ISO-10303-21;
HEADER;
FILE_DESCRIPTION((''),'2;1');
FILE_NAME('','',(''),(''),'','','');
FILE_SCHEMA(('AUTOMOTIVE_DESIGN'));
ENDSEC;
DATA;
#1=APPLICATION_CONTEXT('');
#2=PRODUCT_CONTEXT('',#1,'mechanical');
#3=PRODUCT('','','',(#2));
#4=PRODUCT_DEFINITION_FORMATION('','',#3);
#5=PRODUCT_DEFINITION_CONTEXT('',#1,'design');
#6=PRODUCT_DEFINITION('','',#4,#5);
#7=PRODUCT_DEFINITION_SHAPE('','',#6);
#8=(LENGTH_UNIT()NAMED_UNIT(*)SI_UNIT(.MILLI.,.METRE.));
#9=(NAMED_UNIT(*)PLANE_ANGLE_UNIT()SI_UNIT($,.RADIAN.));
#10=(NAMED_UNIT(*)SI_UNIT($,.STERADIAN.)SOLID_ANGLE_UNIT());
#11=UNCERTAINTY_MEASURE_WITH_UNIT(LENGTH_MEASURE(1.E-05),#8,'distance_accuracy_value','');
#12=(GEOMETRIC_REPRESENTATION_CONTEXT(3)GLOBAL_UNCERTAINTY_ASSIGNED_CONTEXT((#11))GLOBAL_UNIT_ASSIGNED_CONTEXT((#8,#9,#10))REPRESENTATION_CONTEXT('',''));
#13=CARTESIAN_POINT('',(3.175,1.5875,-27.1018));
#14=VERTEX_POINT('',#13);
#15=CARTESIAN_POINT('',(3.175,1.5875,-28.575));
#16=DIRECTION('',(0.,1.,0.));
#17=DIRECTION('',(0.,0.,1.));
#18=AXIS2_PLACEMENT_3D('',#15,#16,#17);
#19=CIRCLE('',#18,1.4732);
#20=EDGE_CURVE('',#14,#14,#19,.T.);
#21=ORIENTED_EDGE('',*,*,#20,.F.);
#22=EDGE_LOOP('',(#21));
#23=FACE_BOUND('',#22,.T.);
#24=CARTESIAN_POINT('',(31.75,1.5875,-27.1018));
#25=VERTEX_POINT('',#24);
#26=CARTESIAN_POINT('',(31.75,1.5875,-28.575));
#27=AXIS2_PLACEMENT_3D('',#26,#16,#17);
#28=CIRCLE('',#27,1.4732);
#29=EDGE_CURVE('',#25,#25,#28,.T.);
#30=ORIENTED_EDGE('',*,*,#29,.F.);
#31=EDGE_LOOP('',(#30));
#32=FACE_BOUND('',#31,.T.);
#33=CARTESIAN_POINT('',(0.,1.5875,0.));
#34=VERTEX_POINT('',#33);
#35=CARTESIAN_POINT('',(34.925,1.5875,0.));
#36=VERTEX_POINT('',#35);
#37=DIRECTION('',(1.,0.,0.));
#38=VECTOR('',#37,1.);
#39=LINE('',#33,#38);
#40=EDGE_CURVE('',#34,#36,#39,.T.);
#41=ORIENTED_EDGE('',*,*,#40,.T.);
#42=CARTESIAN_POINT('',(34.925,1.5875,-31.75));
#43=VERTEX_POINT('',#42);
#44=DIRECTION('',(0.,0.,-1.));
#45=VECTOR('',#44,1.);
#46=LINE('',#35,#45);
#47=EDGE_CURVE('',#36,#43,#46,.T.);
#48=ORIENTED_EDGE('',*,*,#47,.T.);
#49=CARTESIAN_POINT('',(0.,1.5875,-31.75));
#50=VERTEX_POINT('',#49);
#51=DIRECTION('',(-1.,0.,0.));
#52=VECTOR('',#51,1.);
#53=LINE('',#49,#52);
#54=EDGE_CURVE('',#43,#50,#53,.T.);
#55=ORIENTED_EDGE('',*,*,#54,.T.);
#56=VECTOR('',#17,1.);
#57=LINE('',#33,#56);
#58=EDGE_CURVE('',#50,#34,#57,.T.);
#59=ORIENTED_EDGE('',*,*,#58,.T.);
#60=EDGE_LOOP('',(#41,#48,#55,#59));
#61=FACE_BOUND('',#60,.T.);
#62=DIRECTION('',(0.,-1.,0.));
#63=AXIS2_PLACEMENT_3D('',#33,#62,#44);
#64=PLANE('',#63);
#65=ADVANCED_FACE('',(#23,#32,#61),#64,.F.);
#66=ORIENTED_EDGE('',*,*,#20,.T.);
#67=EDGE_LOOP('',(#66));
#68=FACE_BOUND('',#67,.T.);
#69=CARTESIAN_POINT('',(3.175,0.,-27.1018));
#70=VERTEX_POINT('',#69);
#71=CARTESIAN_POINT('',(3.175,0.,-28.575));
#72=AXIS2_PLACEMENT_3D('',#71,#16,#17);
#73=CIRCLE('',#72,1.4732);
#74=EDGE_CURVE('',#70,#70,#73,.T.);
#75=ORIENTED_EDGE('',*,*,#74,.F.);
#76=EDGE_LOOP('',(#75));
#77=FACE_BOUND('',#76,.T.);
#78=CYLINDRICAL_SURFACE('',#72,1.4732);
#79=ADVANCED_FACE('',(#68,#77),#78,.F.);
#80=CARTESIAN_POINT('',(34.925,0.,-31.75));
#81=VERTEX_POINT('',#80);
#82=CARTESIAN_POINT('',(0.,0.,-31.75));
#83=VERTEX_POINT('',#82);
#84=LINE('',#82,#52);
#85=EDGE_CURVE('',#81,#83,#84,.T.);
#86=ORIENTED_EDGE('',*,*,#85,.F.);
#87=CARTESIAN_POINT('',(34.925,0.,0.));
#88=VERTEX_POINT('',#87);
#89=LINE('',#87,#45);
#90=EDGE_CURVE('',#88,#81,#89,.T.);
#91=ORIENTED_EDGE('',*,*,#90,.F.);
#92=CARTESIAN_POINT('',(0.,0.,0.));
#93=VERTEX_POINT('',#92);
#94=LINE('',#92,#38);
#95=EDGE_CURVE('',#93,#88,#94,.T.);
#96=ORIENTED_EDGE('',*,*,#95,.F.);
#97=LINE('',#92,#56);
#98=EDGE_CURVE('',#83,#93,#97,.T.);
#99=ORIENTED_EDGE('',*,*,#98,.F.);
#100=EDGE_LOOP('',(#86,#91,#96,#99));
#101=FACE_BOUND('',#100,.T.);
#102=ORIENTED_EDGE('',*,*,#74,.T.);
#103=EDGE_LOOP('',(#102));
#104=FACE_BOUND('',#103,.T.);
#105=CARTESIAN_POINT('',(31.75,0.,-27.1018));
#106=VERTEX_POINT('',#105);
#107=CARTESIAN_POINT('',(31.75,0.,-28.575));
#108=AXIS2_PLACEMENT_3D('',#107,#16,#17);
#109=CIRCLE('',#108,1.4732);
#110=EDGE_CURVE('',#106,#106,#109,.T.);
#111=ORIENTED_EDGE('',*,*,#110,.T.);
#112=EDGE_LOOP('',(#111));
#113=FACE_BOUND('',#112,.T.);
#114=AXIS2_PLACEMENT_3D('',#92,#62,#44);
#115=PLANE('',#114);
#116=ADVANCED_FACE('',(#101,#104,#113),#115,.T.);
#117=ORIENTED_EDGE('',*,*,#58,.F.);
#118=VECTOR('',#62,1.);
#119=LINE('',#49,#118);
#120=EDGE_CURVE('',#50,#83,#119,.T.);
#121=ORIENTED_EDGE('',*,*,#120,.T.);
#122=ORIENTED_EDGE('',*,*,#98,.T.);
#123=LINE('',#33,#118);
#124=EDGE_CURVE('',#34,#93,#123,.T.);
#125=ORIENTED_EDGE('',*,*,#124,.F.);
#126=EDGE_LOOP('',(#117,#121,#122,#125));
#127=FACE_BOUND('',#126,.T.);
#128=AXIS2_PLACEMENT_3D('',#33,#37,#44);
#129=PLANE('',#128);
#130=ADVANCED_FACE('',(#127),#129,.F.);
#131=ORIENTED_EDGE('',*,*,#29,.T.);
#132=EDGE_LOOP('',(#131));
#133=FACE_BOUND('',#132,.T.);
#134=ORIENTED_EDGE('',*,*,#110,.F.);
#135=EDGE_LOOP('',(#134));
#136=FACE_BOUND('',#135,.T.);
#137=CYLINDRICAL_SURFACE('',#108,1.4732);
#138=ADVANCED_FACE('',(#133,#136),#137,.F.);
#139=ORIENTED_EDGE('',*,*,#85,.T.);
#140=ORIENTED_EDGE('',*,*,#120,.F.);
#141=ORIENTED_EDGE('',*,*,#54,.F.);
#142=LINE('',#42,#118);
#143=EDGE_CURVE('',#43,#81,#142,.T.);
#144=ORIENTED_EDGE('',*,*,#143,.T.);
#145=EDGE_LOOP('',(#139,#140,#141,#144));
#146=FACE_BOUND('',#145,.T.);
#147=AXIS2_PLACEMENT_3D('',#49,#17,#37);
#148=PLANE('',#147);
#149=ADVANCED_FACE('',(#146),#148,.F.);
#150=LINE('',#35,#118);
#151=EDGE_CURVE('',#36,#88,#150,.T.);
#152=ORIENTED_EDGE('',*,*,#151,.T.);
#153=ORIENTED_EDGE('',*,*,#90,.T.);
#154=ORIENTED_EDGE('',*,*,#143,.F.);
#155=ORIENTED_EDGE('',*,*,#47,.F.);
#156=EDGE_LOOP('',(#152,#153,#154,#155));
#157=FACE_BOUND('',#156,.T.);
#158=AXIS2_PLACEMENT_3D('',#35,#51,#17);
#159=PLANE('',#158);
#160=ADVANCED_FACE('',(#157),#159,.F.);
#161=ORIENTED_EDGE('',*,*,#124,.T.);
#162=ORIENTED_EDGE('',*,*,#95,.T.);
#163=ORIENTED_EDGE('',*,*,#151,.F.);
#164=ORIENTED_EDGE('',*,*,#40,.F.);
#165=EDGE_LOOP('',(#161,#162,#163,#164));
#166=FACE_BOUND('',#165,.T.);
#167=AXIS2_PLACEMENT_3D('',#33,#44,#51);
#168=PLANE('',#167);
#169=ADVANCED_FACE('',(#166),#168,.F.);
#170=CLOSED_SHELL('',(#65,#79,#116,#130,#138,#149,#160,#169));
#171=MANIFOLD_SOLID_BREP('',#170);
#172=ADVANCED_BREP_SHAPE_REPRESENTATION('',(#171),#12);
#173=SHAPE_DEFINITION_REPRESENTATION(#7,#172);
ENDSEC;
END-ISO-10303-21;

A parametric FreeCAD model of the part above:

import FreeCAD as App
import Part
import Sketcher

V = App.Vector
Q = App.Units.Quantity


def add_polygon(sketch, points):
    """Adds a closed chain of lines whose ends are joined by coincident constraints."""
    first, n = sketch.GeometryCount, len(points)
    for a, b in zip(points, points[1:] + points[:1]):
        sketch.addGeometry(Part.LineSegment(App.Vector(*a, 0), App.Vector(*b, 0)), False)
    for i in range(n):
        sketch.addConstraint(Sketcher.Constraint("Coincident", first + i, 2, first + (i + 1) % n, 1))

doc = App.newDocument("Part")
body = doc.addObject("PartDesign::Body", "Body")

# Sketch on XZ plane
sketch1 = body.newObject("Sketcher::SketchObject", "Sketch")
sketch1.AttachmentSupport = (doc.getObject("XZ_Plane"), [""])
sketch1.MapMode = "FlatFace"
add_polygon(sketch1, [(0, -32), (0, 0), (35, 0), (35, -32)])  # lines 0-3
sketch1.addConstraint(Sketcher.Constraint("Vertical", 0))
sketch1.addConstraint(Sketcher.Constraint("Horizontal", 1))
sketch1.addConstraint(Sketcher.Constraint("Vertical", 2))
sketch1.addConstraint(Sketcher.Constraint("Horizontal", 3))
sketch1.addConstraint(Sketcher.Constraint("Coincident", 0, 2, -1, 1))
sketch1.addConstraint(Sketcher.Constraint("DistanceY", 0, 1, 0, 2, Q("1.25 in")))
sketch1.addConstraint(Sketcher.Constraint("DistanceX", 1, 1, 1, 2, Q("1.375 in")))
pad1 = body.newObject("PartDesign::Pad", "Pad")
pad1.Profile = sketch1
pad1.Length = Q("0.0625 in")
pad1.Reversed = True

# Sketch on XZ plane
sketch2 = body.newObject("Sketcher::SketchObject", "Sketch001")
sketch2.AttachmentSupport = (doc.getObject("XZ_Plane"), [""])
sketch2.MapMode = "FlatFace"
sketch2.AttachmentOffset = App.Placement(V(0, 0, -0.0625 * 25.4), App.Rotation())
sketch2.addGeometry(Part.Circle(V(3.2, -28.6, 0), V(0, 0, 1), 1.5), False)
sketch2.addGeometry(Part.Circle(V(31.8, -28.6, 0), V(0, 0, 1), 1.5), False)
sketch2.addConstraint(Sketcher.Constraint("Equal", 0, 1))
sketch2.addConstraint(Sketcher.Constraint("Horizontal", 0, 3, 1, 3))
sketch2.addConstraint(Sketcher.Constraint("Diameter", 0, Q("0.116 in")))
sketch2.addConstraint(Sketcher.Constraint("DistanceX", -1, 1, 1, 3, Q("1.25 in")))
sketch2.addConstraint(Sketcher.Constraint("DistanceX", -1, 1, 0, 3, Q("0.125 in")))
sketch2.addConstraint(Sketcher.Constraint("DistanceY", 0, 3, -1, 1, Q("1.125 in")))
pocket1 = body.newObject("PartDesign::Pocket", "Pocket")
pocket1.Profile = sketch2
pocket1.Length = Q("0.0625 in")
pocket1.Reversed = True

doc.recompute()
